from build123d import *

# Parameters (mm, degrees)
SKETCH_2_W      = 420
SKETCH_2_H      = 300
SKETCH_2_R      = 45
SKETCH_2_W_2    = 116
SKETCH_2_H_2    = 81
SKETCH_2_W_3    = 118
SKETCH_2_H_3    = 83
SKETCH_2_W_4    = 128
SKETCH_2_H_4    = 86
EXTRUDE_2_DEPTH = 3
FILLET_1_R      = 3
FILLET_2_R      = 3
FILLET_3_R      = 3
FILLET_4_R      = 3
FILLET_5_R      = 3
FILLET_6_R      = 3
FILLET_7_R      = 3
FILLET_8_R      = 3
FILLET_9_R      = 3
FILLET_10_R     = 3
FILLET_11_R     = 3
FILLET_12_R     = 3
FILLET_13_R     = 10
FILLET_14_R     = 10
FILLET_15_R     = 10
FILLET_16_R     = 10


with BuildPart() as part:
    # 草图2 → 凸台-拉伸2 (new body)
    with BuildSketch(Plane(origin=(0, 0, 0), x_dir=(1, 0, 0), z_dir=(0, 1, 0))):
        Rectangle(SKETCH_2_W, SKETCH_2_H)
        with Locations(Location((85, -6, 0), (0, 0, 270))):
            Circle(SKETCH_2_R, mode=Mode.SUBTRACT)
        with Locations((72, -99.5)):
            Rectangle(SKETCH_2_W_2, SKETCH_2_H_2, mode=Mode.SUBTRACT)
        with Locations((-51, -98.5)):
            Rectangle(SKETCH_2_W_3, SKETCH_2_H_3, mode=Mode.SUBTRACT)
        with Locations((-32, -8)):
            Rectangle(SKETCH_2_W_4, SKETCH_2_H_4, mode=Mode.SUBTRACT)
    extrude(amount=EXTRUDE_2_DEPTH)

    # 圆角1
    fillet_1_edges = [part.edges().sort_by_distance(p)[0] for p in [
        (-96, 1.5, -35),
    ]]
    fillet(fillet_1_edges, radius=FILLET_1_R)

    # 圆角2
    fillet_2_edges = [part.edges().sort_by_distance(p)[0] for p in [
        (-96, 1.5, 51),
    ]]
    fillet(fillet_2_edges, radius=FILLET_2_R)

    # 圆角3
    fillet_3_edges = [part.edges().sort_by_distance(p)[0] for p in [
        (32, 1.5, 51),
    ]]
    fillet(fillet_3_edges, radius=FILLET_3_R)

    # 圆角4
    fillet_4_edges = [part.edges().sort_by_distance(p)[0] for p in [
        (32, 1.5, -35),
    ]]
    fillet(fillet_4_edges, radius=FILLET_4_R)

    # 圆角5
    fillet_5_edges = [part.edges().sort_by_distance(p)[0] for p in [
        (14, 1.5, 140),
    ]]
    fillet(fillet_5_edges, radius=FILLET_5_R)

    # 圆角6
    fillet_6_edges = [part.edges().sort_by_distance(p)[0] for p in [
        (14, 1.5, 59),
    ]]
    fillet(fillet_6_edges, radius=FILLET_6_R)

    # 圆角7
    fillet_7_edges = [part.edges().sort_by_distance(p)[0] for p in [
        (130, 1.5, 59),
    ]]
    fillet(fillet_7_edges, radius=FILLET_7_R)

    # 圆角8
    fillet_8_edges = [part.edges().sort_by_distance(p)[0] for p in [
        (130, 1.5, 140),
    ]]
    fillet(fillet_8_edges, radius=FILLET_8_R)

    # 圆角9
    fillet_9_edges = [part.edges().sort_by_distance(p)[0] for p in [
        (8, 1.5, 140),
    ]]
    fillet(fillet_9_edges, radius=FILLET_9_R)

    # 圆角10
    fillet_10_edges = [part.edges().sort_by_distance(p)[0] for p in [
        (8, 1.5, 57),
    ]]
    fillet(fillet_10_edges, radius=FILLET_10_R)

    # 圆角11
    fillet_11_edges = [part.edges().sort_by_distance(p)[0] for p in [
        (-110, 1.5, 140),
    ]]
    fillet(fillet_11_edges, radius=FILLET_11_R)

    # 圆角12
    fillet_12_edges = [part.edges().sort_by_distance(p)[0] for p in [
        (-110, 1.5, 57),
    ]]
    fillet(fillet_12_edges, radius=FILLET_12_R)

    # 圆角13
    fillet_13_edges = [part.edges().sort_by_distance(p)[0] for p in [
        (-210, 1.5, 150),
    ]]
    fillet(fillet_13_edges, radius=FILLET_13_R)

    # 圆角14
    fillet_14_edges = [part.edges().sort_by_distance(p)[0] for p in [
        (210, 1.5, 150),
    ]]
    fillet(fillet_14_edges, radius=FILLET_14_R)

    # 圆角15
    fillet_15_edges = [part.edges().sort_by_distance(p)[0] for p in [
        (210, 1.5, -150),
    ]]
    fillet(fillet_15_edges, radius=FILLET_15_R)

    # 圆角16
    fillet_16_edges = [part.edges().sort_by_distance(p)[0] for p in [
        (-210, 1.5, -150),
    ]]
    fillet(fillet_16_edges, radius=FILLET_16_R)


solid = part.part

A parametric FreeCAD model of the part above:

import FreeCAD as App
import Part
import Sketcher


def edges_at(feature, points):
    """Names of the edges that pass closest to the given points."""
    edges = feature.Shape.Edges
    near = lambda p: min(range(len(edges)), key=lambda i: edges[i].distToShape(Part.Vertex(*p))[0])
    return sorted({f"Edge{near(p) + 1}" for p in points})


def add_polygon(sketch, points):
    """Adds a closed chain of lines whose ends are joined by coincident constraints."""
    first, n = sketch.GeometryCount, len(points)
    for a, b in zip(points, points[1:] + points[:1]):
        sketch.addGeometry(Part.LineSegment(App.Vector(*a, 0), App.Vector(*b, 0)), False)
    for i in range(n):
        sketch.addConstraint(Sketcher.Constraint("Coincident", first + i, 2, first + (i + 1) % n, 1))

doc = App.newDocument("Part")
body = doc.addObject("PartDesign::Body", "Body")

sketch1 = body.newObject("Sketcher::SketchObject", "Sketch")
sketch1.AttachmentSupport = (doc.getObject("XZ_Plane"), [""])
sketch1.MapMode = "FlatFace"
add_polygon(sketch1, [(-210, -150), (-210, 150), (210, 150), (210, -150)])
add_polygon(sketch1, [(8, 140), (-110, 140), (-110, 57), (8, 57)])
add_polygon(sketch1, [(130, 140), (14, 140), (14, 59), (130, 59)])
add_polygon(sketch1, [(32, 51), (-96, 51), (-96, -35), (32, -35)])
sketch1.addGeometry(Part.Circle(App.Vector(85, 6, 0), App.Vector(0, 0, 1), 45), False)
sketch1.addConstraint(Sketcher.Constraint("Vertical", 0))
sketch1.addConstraint(Sketcher.Constraint("Horizontal", 1))
sketch1.addConstraint(Sketcher.Constraint("Vertical", 2))
sketch1.addConstraint(Sketcher.Constraint("Horizontal", 3))
sketch1.addConstraint(Sketcher.Constraint("Horizontal", 4))
sketch1.addConstraint(Sketcher.Constraint("Vertical", 5))
sketch1.addConstraint(Sketcher.Constraint("Horizontal", 6))
sketch1.addConstraint(Sketcher.Constraint("Vertical", 7))
sketch1.addConstraint(Sketcher.Constraint("Horizontal", 8))
sketch1.addConstraint(Sketcher.Constraint("Vertical", 9))
sketch1.addConstraint(Sketcher.Constraint("Horizontal", 10))
sketch1.addConstraint(Sketcher.Constraint("Vertical", 11))
sketch1.addConstraint(Sketcher.Constraint("Horizontal", 12))
sketch1.addConstraint(Sketcher.Constraint("Vertical", 13))
sketch1.addConstraint(Sketcher.Constraint("Horizontal", 14))
sketch1.addConstraint(Sketcher.Constraint("Vertical", 15))
sketch1.addConstraint(Sketcher.Constraint("Symmetric", 0, 2, 2, 2, -1, 1))
sketch1.addConstraint(Sketcher.Constraint("Horizontal", 7, 2, 8, 2))
sketch1.addConstraint(Sketcher.Constraint("Diameter", 16, 90.0))
sketch1.addConstraint(Sketcher.Constraint("DistanceX", 1, 1, 1, 2, 420.0))
sketch1.addConstraint(Sketcher.Constraint("DistanceX", 4, 2, 4, 1, 118.0))
sketch1.addConstraint(Sketcher.Constraint("DistanceX", 8, 2, 8, 1, 116.0))
sketch1.addConstraint(Sketcher.Constraint("DistanceX", 12, 2, 12, 1, 128.0))
sketch1.addConstraint(Sketcher.Constraint("DistanceY", 0, 1, 0, 2, 300.0))
sketch1.addConstraint(Sketcher.Constraint("DistanceY", 5, 2, 5, 1, 83.0))
sketch1.addConstraint(Sketcher.Constraint("DistanceY", 9, 2, 9, 1, 81.0))
sketch1.addConstraint(Sketcher.Constraint("DistanceY", 13, 2, 13, 1, 86.0))
sketch1.addConstraint(Sketcher.Constraint("DistanceX", -1, 1, 16, 3, 85.0))
sketch1.addConstraint(Sketcher.Constraint("DistanceY", -1, 1, 16, 3, 6.0))
sketch1.addConstraint(Sketcher.Constraint("DistanceX", 4, 2, -1, 1, 110.0))
sketch1.addConstraint(Sketcher.Constraint("DistanceY", -1, 1, 4, 2, 140.0))
sketch1.addConstraint(Sketcher.Constraint("DistanceX", -1, 1, 8, 2, 14.0))
sketch1.addConstraint(Sketcher.Constraint("DistanceX", 12, 2, -1, 1, 96.0))
sketch1.addConstraint(Sketcher.Constraint("DistanceY", -1, 1, 12, 2, 51.0))
pad1 = body.newObject("PartDesign::Pad", "Pad")
pad1.Profile = sketch1
pad1.Length = 3
pad1.Reversed = True
doc.recompute()

fillet = body.newObject("PartDesign::Fillet", "Fillet")
fillet.Base = (pad1, edges_at(pad1, [(-96, 1.5, -35)]))
fillet.Radius = 3
doc.recompute()

fillet2 = body.newObject("PartDesign::Fillet", "Fillet001")
fillet2.Base = (fillet, edges_at(fillet, [(-96, 1.5, 51)]))
fillet2.Radius = 3
doc.recompute()

fillet3 = body.newObject("PartDesign::Fillet", "Fillet002")
fillet3.Base = (fillet2, edges_at(fillet2, [(32, 1.5, 51)]))
fillet3.Radius = 3
doc.recompute()

fillet4 = body.newObject("PartDesign::Fillet", "Fillet003")
fillet4.Base = (fillet3, edges_at(fillet3, [(32, 1.5, -35)]))
fillet4.Radius = 3
doc.recompute()

fillet5 = body.newObject("PartDesign::Fillet", "Fillet004")
fillet5.Base = (fillet4, edges_at(fillet4, [(14, 1.5, 140)]))
fillet5.Radius = 3
doc.recompute()

fillet6 = body.newObject("PartDesign::Fillet", "Fillet005")
fillet6.Base = (fillet5, edges_at(fillet5, [(14, 1.5, 59)]))
fillet6.Radius = 3
doc.recompute()

fillet7 = body.newObject("PartDesign::Fillet", "Fillet006")
fillet7.Base = (fillet6, edges_at(fillet6, [(130, 1.5, 59)]))
fillet7.Radius = 3
doc.recompute()

fillet8 = body.newObject("PartDesign::Fillet", "Fillet007")
fillet8.Base = (fillet7, edges_at(fillet7, [(130, 1.5, 140)]))
fillet8.Radius = 3
doc.recompute()

fillet9 = body.newObject("PartDesign::Fillet", "Fillet008")
fillet9.Base = (fillet8, edges_at(fillet8, [(8, 1.5, 140)]))
fillet9.Radius = 3
doc.recompute()

fillet10 = body.newObject("PartDesign::Fillet", "Fillet009")
fillet10.Base = (fillet9, edges_at(fillet9, [(8, 1.5, 57)]))
fillet10.Radius = 3
doc.recompute()

fillet11 = body.newObject("PartDesign::Fillet", "Fillet010")
fillet11.Base = (fillet10, edges_at(fillet10, [(-110, 1.5, 140)]))
fillet11.Radius = 3
doc.recompute()

fillet12 = body.newObject("PartDesign::Fillet", "Fillet011")
fillet12.Base = (fillet11, edges_at(fillet11, [(-110, 1.5, 57)]))
fillet12.Radius = 3
doc.recompute()

fillet13 = body.newObject("PartDesign::Fillet", "Fillet012")
fillet13.Base = (fillet12, edges_at(fillet12, [(-210, 1.5, 150)]))
fillet13.Radius = 10
doc.recompute()

fillet14 = body.newObject("PartDesign::Fillet", "Fillet013")
fillet14.Base = (fillet13, edges_at(fillet13, [(210, 1.5, 150)]))
fillet14.Radius = 10
doc.recompute()

fillet15 = body.newObject("PartDesign::Fillet", "Fillet014")
fillet15.Base = (fillet14, edges_at(fillet14, [(210, 1.5, -150)]))
fillet15.Radius = 10
doc.recompute()

fillet16 = body.newObject("PartDesign::Fillet", "Fillet015")
fillet16.Base = (fillet15, edges_at(fillet15, [(-210, 1.5, -150)]))
fillet16.Radius = 10

doc.recompute()
